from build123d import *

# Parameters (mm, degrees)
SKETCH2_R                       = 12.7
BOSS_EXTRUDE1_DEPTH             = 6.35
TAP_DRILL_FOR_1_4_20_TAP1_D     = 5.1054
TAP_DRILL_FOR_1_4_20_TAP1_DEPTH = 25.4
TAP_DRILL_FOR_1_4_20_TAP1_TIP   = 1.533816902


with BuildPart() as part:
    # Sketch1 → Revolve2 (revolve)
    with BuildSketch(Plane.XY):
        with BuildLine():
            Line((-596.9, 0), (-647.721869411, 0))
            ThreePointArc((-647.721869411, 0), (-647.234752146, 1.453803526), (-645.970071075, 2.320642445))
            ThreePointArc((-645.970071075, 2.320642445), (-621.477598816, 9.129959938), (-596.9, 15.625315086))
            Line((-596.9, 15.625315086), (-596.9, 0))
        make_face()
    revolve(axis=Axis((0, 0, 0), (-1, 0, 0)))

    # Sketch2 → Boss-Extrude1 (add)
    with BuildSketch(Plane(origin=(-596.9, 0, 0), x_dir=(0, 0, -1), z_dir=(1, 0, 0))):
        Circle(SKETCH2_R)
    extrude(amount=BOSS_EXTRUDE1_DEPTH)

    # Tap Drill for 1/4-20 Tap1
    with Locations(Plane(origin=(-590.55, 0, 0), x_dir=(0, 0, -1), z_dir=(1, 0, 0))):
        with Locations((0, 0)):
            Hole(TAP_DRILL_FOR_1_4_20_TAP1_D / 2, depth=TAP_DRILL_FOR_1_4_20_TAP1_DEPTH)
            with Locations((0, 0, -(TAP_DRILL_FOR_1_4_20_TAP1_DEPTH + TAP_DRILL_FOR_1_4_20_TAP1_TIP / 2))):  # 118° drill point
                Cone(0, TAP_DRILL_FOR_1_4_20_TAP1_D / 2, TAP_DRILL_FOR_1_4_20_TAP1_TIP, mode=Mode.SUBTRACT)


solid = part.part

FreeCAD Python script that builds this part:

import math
import FreeCAD as App
import Part
import Sketcher

V = App.Vector
Q = App.Units.Quantity

doc = App.newDocument("Part")
body = doc.addObject("PartDesign::Body", "Body")

sketch1 = doc.addObject("Sketcher::SketchObject", "Sketch")
body.addObject(sketch1)
sketch1.AttachmentSupport = (doc.XY_Plane, [""])
sketch1.MapMode = "FlatFace"
sketch1.addGeometry([
    Part.LineSegment(V(-647.721869, 0, 0), V(-596.9, 0, 0)),
    Part.LineSegment(V(-596.9, 0, 0), V(-596.9, 15.625315, 0)),
    Part.ArcOfCircle(Part.Circle(V(-101.600001, -1908.2739, 0), V(0, 0, 1), 1986.6329), math.radians(104.437059), math.radians(105.903409)),
    Part.ArcOfCircle(Part.Circle(V(-645.308869, 0, 0), V(0, 0, 1), 2.413), math.radians(105.903409), math.radians(180)),
], False)
sketch1.addConstraint([
    Sketcher.Constraint("Coincident", 0, 2, 1, 1),
    Sketcher.Constraint("Coincident", 1, 2, 2, 1),
    Sketcher.Constraint("Tangent", 2, 2, 3, 1),
    Sketcher.Constraint("Coincident", 3, 2, 0, 1),
    Sketcher.Constraint("Horizontal", 0),
    Sketcher.Constraint("Vertical", 1),
    Sketcher.Constraint("PointOnObject", 3, 3, -1),
    Sketcher.Constraint("PointOnObject", 0, 2, -1),
    Sketcher.Constraint("DistanceX", 2, 3, -1, 1, Q("4 in")),
    Sketcher.Constraint("Radius", 3, Q("0.095 in")),
    Sketcher.Constraint("DistanceX", 0, 2, -1, 1, Q("23.5 in")),
    Sketcher.Constraint("Radius", 2, 1986.6329),
    Sketcher.Constraint("DistanceX", 0, 1, 0, 2, 50.821869),
])
revolution = doc.addObject("PartDesign::Revolution", "Revolution")
body.addObject(revolution)
revolution.Profile = sketch1
revolution.ReferenceAxis = (sketch1, ["H_Axis"])
revolution.Angle = 360

sketch2 = doc.addObject("Sketcher::SketchObject", "Sketch001")
body.addObject(sketch2)
sketch2.AttachmentSupport = (doc.YZ_Plane, [""])
sketch2.MapMode = "FlatFace"
sketch2.AttachmentOffset = App.Placement(V(0, 0, -23.5 * 25.4), App.Rotation())
sketch2.addGeometry(Part.Circle(V(0, 0, 0), V(0, 0, 1), 12.7), False)
sketch2.addConstraint([
    Sketcher.Constraint("Coincident", 0, 3, -1, 1),
    Sketcher.Constraint("Diameter", 0, Q("1 in")),
])
pad1 = doc.addObject("PartDesign::Pad", "Pad")
body.addObject(pad1)
pad1.Profile = sketch2
pad1.Length = Q("0.25 in")

sketch3 = doc.addObject("Sketcher::SketchObject", "Sketch002")
body.addObject(sketch3)
sketch3.AttachmentSupport = (doc.YZ_Plane, [""])
sketch3.MapMode = "FlatFace"
sketch3.AttachmentOffset = App.Placement(V(0, 0, -23.25 * 25.4), App.Rotation())
sketch3.addGeometry(Part.Circle(V(0, 0, 0), V(0, 0, 1), 2.5527), False)
sketch3.addConstraint([
    Sketcher.Constraint("Coincident", 0, 3, -1, 1),
    Sketcher.Constraint("Diameter", 0, Q("0.201 in")),
])
doc.recompute()
hole = doc.addObject("PartDesign::Hole", "Hole")
body.addObject(hole)
hole.Profile = sketch3
hole.ThreadType = "None"
hole.Diameter = Q("0.201 in")
hole.DepthType = "Dimension"
hole.Depth = Q("1 in")
hole.DrillPoint = "Angled"
hole.DrillPointAngle = 118

doc.recompute()
